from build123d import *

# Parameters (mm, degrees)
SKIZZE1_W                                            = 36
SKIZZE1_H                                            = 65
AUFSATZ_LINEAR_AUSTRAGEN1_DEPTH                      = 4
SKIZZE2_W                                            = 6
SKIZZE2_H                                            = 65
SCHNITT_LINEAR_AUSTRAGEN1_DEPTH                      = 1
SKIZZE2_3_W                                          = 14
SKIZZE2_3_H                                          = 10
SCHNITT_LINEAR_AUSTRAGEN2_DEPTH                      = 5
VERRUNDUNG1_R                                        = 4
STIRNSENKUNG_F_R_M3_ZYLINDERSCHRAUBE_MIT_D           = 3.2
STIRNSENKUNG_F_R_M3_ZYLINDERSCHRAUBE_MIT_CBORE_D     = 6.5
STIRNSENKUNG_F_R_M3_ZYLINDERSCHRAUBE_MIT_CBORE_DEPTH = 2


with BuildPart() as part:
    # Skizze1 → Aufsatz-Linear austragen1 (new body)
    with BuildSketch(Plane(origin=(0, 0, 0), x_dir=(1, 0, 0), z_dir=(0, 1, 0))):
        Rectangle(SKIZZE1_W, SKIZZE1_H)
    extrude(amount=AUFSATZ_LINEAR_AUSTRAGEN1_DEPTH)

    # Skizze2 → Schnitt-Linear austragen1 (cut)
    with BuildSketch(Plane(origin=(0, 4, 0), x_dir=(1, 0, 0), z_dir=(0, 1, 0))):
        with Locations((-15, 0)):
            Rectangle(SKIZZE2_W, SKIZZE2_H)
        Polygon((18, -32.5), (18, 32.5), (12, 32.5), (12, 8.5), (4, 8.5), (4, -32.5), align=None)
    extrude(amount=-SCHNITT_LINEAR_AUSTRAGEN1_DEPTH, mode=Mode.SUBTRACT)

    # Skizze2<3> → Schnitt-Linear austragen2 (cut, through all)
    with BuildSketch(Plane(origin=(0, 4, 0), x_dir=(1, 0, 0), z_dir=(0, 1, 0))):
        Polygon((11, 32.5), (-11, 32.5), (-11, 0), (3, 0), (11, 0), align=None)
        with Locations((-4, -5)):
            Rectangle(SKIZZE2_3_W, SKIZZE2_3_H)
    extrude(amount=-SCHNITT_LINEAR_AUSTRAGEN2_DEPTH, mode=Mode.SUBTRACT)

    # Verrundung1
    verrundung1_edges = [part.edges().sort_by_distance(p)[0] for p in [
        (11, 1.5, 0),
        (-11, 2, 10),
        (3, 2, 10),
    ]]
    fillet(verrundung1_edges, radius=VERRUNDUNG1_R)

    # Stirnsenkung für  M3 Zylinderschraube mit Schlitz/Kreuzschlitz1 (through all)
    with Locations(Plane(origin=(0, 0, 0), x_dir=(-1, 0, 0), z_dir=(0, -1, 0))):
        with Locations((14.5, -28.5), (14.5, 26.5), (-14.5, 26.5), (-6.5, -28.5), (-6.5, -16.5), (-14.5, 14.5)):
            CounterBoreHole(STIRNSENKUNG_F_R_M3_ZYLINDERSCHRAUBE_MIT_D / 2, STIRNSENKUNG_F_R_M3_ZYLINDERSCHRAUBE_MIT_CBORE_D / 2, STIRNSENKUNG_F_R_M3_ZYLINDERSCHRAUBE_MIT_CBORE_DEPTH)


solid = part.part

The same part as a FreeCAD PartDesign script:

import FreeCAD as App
import Part
import Sketcher

V = App.Vector
Q = App.Units.Quantity


def edges_at(feature, points):
    """Names of the edges that pass closest to the given points."""
    edges = feature.Shape.Edges
    near = lambda p: min(range(len(edges)), key=lambda i: edges[i].distToShape(Part.Vertex(*p))[0])
    return sorted({f"Edge{near(p) + 1}" for p in points})

doc = App.newDocument("Part")
params = doc.addObject("Spreadsheet::Sheet", "Params")
for row, (alias, value) in enumerate([
    ("sketch1_width", "36 mm"),
    ("sketch1_height", "65 mm"),
    ("pad1_length", "4 mm"),
    ("sketch2_width", "6 mm"),
    ("sketch2_width2", "8 mm"),
    ("sketch2_height", "65 mm"),
    ("sketch2_height2", "24 mm"),
    ("pocket1_length", "1 mm"),
    ("sketch3_width", "22 mm"),
    ("sketch3_width2", "14 mm"),
    ("sketch3_height", "10 mm"),
    ("sketch3_height2", "42.5 mm"),
    ("fillet_radius", "4 mm"),
    ("sketch4_diameter", "3.2 mm"),
    ("hole_diameter", "3.2 mm"),
    ("hole_cbore_diameter", "6.5 mm"),
    ("hole_cbore_depth", "2 mm"),
], start=1):
    params.set(f"A{row}", alias)
    params.set(f"B{row}", "=" + value)
    params.setAlias(f"B{row}", alias)

body = doc.addObject("PartDesign::Body", "Body")

sketch1 = body.newObject("Sketcher::SketchObject", "Sketch")
sketch1.AttachmentSupport = (doc.getObject("XZ_Plane"), [""])
sketch1.MapMode = "FlatFace"
sketch1.addGeometry([
    Part.LineSegment(V(-18, -32, 0), V(-18, 32, 0)),
    Part.LineSegment(V(-18, 32, 0), V(18, 32, 0)),
    Part.LineSegment(V(18, 32, 0), V(18, -32, 0)),
    Part.LineSegment(V(18, -32, 0), V(-18, -32, 0)),
], False)
sketch1.addConstraint([
    Sketcher.Constraint("Coincident", 0, 2, 1, 1),
    Sketcher.Constraint("Coincident", 1, 2, 2, 1),
    Sketcher.Constraint("Coincident", 2, 2, 3, 1),
    Sketcher.Constraint("Coincident", 3, 2, 0, 1),
    Sketcher.Constraint("Vertical", 0),
    Sketcher.Constraint("Horizontal", 1),
    Sketcher.Constraint("Vertical", 2),
    Sketcher.Constraint("Horizontal", 3),
    Sketcher.Constraint("Symmetric", 0, 2, 2, 2, -1, 1),
    Sketcher.Constraint("DistanceX", 1, 1, 1, 2, Q("36 mm")),
    Sketcher.Constraint("DistanceY", 0, 1, 0, 2, Q("65 mm")),
])
sketch1.setExpression("Constraints[9]", "Params.sketch1_width")
sketch1.setExpression("Constraints[10]", "Params.sketch1_height")
pad1 = body.newObject("PartDesign::Pad", "Pad")
pad1.Profile = sketch1
pad1.setExpression("Length", "Params.pad1_length")
pad1.Reversed = True

sketch2 = body.newObject("Sketcher::SketchObject", "Sketch001")
sketch2.AttachmentSupport = (doc.getObject("XZ_Plane"), [""])
sketch2.MapMode = "FlatFace"
sketch2.AttachmentOffset = App.Placement(V(0, 0, -4), App.Rotation())
sketch2.addGeometry([
    Part.LineSegment(V(-18, -32, 0), V(-18, 32, 0)),
    Part.LineSegment(V(-18, 32, 0), V(-12, 32, 0)),
    Part.LineSegment(V(-12, 32, 0), V(-12, -32, 0)),
    Part.LineSegment(V(-12, -32, 0), V(-18, -32, 0)),
    Part.LineSegment(V(18, 32, 0), V(18, -32, 0)),
    Part.LineSegment(V(18, -32, 0), V(12, -32, 0)),
    Part.LineSegment(V(12, -32, 0), V(12, -8, 0)),
    Part.LineSegment(V(12, -8, 0), V(4, -8, 0)),
    Part.LineSegment(V(4, -8, 0), V(4, 32, 0)),
    Part.LineSegment(V(4, 32, 0), V(18, 32, 0)),
], False)
sketch2.addConstraint([
    Sketcher.Constraint("Coincident", 0, 2, 1, 1),
    Sketcher.Constraint("Coincident", 1, 2, 2, 1),
    Sketcher.Constraint("Coincident", 2, 2, 3, 1),
    Sketcher.Constraint("Coincident", 3, 2, 0, 1),
    Sketcher.Constraint("Coincident", 4, 2, 5, 1),
    Sketcher.Constraint("Coincident", 5, 2, 6, 1),
    Sketcher.Constraint("Coincident", 6, 2, 7, 1),
    Sketcher.Constraint("Coincident", 7, 2, 8, 1),
    Sketcher.Constraint("Coincident", 8, 2, 9, 1),
    Sketcher.Constraint("Coincident", 9, 2, 4, 1),
    Sketcher.Constraint("Vertical", 0),
    Sketcher.Constraint("Horizontal", 1),
    Sketcher.Constraint("Vertical", 2),
    Sketcher.Constraint("Horizontal", 3),
    Sketcher.Constraint("Vertical", 4),
    Sketcher.Constraint("Horizontal", 5),
    Sketcher.Constraint("Vertical", 6),
    Sketcher.Constraint("Horizontal", 7),
    Sketcher.Constraint("Vertical", 8),
    Sketcher.Constraint("Horizontal", 9),
    Sketcher.Constraint("Symmetric", 0, 2, 4, 2, -1, 1),
    Sketcher.Constraint("Symmetric", 2, 2, 5, 2, -2),
    Sketcher.Constraint("Horizontal", 1, 2, 8, 2),
    Sketcher.Constraint("DistanceX", 1, 1, 1, 2, Q("6 mm")),
    Sketcher.Constraint("DistanceX", 7, 2, 7, 1, Q("8 mm")),
    Sketcher.Constraint("DistanceY", 0, 1, 0, 2, Q("65 mm")),
    Sketcher.Constraint("DistanceY", 6, 1, 6, 2, Q("24 mm")),
    Sketcher.Constraint("DistanceX", 0, 2, -1, 1, Q("18 mm")),
])
sketch2.setExpression("Constraints[23]", "Params.sketch2_width")
sketch2.setExpression("Constraints[24]", "Params.sketch2_width2")
sketch2.setExpression("Constraints[25]", "Params.sketch2_height")
sketch2.setExpression("Constraints[26]", "Params.sketch2_height2")
pocket1 = body.newObject("PartDesign::Pocket", "Pocket")
pocket1.Profile = sketch2
pocket1.setExpression("Length", "Params.pocket1_length")
pocket1.Reversed = True

sketch3 = body.newObject("Sketcher::SketchObject", "Sketch002")
sketch3.AttachmentSupport = (doc.getObject("XZ_Plane"), [""])
sketch3.MapMode = "FlatFace"
sketch3.AttachmentOffset = App.Placement(V(0, 0, -4), App.Rotation())
sketch3.addGeometry([
    Part.LineSegment(V(11, -32, 0), V(-11, -32, 0)),
    Part.LineSegment(V(-11, -32, 0), V(-11, 10, 0)),
    Part.LineSegment(V(-11, 10, 0), V(3, 10, 0)),
    Part.LineSegment(V(3, 10, 0), V(3, 0, 0)),
    Part.LineSegment(V(3, 0, 0), V(11, 0, 0)),
    Part.LineSegment(V(11, 0, 0), V(11, -32, 0)),
], False)
sketch3.addConstraint([
    Sketcher.Constraint("Coincident", 0, 2, 1, 1),
    Sketcher.Constraint("Coincident", 1, 2, 2, 1),
    Sketcher.Constraint("Coincident", 2, 2, 3, 1),
    Sketcher.Constraint("Coincident", 3, 2, 4, 1),
    Sketcher.Constraint("Coincident", 4, 2, 5, 1),
    Sketcher.Constraint("Coincident", 5, 2, 0, 1),
    Sketcher.Constraint("Horizontal", 0),
    Sketcher.Constraint("Vertical", 1),
    Sketcher.Constraint("Horizontal", 2),
    Sketcher.Constraint("Vertical", 3),
    Sketcher.Constraint("Horizontal", 4),
    Sketcher.Constraint("Vertical", 5),
    Sketcher.Constraint("PointOnObject", 3, 2, -1),
    Sketcher.Constraint("DistanceX", 0, 2, 0, 1, Q("22 mm")),
    Sketcher.Constraint("DistanceX", 2, 1, 2, 2, Q("14 mm")),
    Sketcher.Constraint("DistanceY", 3, 2, 3, 1, Q("10 mm")),
    Sketcher.Constraint("DistanceY", 1, 1, 1, 2, Q("42.5 mm")),
    Sketcher.Constraint("DistanceX", 0, 2, -1, 1, Q("11 mm")),
])
sketch3.setExpression("Constraints[13]", "Params.sketch3_width")
sketch3.setExpression("Constraints[14]", "Params.sketch3_width2")
sketch3.setExpression("Constraints[15]", "Params.sketch3_height")
sketch3.setExpression("Constraints[16]", "Params.sketch3_height2")
pocket2 = body.newObject("PartDesign::Pocket", "Pocket001")
pocket2.Profile = sketch3
pocket2.Type = "ThroughAll"
pocket2.Reversed = True
doc.recompute()

fillet = body.newObject("PartDesign::Fillet", "Fillet")
fillet.Base = (pocket2, edges_at(pocket2, [(11, 1.5, 0), (-11, 2, 10), (3, 2, 10)]))
fillet.setExpression("Radius", "Params.fillet_radius")

sketch4 = body.newObject("Sketcher::SketchObject", "Sketch003")
sketch4.AttachmentSupport = (doc.getObject("XZ_Plane"), [""])
sketch4.MapMode = "FlatFace"
sketch4.addGeometry([
    Part.Circle(V(-14.5, 28.5, 0), V(0, 0, 1), 1.6),
    Part.Circle(V(-14.5, -26.5, 0), V(0, 0, 1), 1.6),
    Part.Circle(V(14.5, -26.5, 0), V(0, 0, 1), 1.6),
    Part.Circle(V(6.5, 28.5, 0), V(0, 0, 1), 1.6),
    Part.Circle(V(6.5, 16.5, 0), V(0, 0, 1), 1.6),
    Part.Circle(V(14.5, -14.5, 0), V(0, 0, 1), 1.6),
], False)
sketch4.addConstraint([
    Sketcher.Constraint("Equal", 0, 1),
    Sketcher.Constraint("Equal", 1, 2),
    Sketcher.Constraint("Equal", 2, 3),
    Sketcher.Constraint("Equal", 3, 4),
    Sketcher.Constraint("Equal", 4, 5),
    Sketcher.Constraint("Symmetric", 1, 3, 2, 3, -2),
    Sketcher.Constraint("Horizontal", 0, 3, 3, 3),
    Sketcher.Constraint("Vertical", 0, 3, 1, 3),
    Sketcher.Constraint("Vertical", 3, 3, 4, 3),
    Sketcher.Constraint("Vertical", 2, 3, 5, 3),
    Sketcher.Constraint("Diameter", 0, Q("3.2 mm")),
    Sketcher.Constraint("DistanceY", 1, 3, 0, 3, Q("55 mm")),
    Sketcher.Constraint("DistanceX", 1, 3, 2, 3, Q("29 mm")),
    Sketcher.Constraint("DistanceX", 0, 3, 3, 3, Q("21 mm")),
    Sketcher.Constraint("DistanceY", 4, 3, 3, 3, Q("12 mm")),
    Sketcher.Constraint("DistanceY", 2, 3, 5, 3, Q("12 mm")),
    Sketcher.Constraint("DistanceY", -1, 1, 0, 3, Q("28.5 mm")),
])
sketch4.setExpression("Constraints[10]", "Params.sketch4_diameter")
doc.recompute()
hole = body.newObject("PartDesign::Hole", "Hole")
hole.Profile = sketch4
hole.ThreadType = "None"
hole.setExpression("Diameter", "Params.hole_diameter")
hole.DepthType = "ThroughAll"
hole.HoleCutType = "Counterbore"
hole.setExpression("HoleCutDiameter", "Params.hole_cbore_diameter")
hole.setExpression("HoleCutDepth", "Params.hole_cbore_depth")

doc.recompute()
